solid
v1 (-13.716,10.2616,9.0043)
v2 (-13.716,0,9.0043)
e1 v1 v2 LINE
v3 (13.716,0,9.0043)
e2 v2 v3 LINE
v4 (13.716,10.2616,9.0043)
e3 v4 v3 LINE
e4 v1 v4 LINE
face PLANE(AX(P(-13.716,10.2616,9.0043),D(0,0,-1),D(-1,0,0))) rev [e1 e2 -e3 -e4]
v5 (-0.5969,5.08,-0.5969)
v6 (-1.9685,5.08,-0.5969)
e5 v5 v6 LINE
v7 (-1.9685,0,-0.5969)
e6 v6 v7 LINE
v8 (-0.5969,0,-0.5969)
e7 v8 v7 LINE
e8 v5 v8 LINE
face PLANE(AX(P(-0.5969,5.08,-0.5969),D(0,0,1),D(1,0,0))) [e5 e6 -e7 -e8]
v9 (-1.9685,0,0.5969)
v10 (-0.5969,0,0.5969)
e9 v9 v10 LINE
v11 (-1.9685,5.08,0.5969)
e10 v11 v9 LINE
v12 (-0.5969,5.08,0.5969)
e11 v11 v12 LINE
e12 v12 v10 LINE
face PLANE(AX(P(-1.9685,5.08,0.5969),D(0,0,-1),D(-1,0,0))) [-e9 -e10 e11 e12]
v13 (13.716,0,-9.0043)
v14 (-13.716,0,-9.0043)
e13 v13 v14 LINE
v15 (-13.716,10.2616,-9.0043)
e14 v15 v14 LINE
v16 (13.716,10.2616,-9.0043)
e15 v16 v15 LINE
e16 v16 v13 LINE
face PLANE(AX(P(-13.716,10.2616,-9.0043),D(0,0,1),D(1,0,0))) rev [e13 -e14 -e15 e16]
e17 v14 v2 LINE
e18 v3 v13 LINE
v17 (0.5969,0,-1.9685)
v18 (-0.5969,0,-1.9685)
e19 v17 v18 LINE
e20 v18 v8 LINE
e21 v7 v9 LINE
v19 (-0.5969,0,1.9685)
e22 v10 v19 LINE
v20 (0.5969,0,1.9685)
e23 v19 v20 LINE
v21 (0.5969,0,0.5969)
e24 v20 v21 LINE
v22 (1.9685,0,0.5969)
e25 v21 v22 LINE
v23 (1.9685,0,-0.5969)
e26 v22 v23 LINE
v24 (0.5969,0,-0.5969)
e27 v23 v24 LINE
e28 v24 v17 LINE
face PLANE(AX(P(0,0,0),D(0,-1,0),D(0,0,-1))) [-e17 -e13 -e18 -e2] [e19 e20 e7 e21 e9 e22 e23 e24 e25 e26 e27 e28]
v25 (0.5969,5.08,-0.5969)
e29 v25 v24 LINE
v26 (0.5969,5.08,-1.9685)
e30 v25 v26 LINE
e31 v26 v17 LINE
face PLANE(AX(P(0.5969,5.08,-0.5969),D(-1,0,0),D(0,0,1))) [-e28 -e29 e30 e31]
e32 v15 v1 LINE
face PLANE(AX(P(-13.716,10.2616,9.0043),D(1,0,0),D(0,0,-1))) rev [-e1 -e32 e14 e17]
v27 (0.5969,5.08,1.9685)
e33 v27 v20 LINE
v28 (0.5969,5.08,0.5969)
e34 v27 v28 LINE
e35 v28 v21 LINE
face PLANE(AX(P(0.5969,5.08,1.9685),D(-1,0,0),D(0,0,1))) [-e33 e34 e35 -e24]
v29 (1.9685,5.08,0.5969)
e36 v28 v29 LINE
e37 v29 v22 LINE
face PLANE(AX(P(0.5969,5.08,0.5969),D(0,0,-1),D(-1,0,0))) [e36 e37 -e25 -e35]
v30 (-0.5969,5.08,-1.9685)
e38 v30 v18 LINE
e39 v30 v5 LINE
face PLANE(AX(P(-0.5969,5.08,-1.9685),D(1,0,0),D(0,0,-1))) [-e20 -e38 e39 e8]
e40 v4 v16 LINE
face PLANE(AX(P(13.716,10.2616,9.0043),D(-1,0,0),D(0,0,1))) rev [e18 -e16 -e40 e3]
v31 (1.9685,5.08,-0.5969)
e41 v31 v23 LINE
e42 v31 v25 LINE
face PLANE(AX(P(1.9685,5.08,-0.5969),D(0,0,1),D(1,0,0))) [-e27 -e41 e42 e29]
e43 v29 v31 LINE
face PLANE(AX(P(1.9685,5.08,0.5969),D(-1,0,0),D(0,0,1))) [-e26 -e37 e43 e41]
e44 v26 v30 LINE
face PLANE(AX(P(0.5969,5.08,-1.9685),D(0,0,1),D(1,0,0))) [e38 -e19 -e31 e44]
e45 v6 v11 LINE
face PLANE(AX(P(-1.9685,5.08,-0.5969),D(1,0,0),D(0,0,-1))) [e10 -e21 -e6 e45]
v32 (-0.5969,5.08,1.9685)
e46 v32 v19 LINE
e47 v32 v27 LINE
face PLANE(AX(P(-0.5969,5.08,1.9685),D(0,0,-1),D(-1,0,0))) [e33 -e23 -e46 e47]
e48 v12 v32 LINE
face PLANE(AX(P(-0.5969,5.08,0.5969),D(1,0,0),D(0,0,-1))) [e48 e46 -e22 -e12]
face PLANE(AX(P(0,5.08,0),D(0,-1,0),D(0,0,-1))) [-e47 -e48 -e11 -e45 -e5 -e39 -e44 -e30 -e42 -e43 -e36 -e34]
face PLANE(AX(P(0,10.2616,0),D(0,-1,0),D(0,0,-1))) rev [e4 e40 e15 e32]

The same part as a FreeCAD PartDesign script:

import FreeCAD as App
import Part
import Sketcher
from FreeCAD import Vector
Q = App.Units.Quantity


def add_polygon(sketch, points):
    """Adds a closed chain of lines whose ends are joined by coincident constraints."""
    first, n = sketch.GeometryCount, len(points)
    for a, b in zip(points, points[1:] + points[:1]):
        sketch.addGeometry(Part.LineSegment(App.Vector(*a, 0), App.Vector(*b, 0)), False)
    for i in range(n):
        sketch.addConstraint(Sketcher.Constraint("Coincident", first + i, 2, first + (i + 1) % n, 1))

doc = App.newDocument("Part")
body = doc.addObject("PartDesign::Body", "Body")

# Sketch on XZ plane
sketch1 = doc.addObject("Sketcher::SketchObject", "Sketch")
body.addObject(sketch1)
sketch1.AttachmentSupport = (doc.XZ_Plane, [""])
sketch1.MapMode = "FlatFace"
add_polygon(sketch1, [(-13.716, -9.0043), (-13.716, 9.0043), (13.716, 9.0043), (13.716, -9.0043)])  # lines 0-3
sketch1.addConstraint(Sketcher.Constraint("Vertical", 0))
sketch1.addConstraint(Sketcher.Constraint("Horizontal", 1))
sketch1.addConstraint(Sketcher.Constraint("Vertical", 2))
sketch1.addConstraint(Sketcher.Constraint("Horizontal", 3))
sketch1.addConstraint(Sketcher.Constraint("Symmetric", 0, 2, 2, 2, -1, 1))
sketch1.addConstraint(Sketcher.Constraint("DistanceX", 1, 1, 1, 2, Q("1.08 in")))
sketch1.addConstraint(Sketcher.Constraint("DistanceY", 0, 1, 0, 2, Q("0.709 in")))
pad1 = doc.addObject("PartDesign::Pad", "Pad")
body.addObject(pad1)
pad1.Profile = sketch1
pad1.Length = Q("0.404 in")
pad1.Reversed = True

# Sketch on XZ plane
sketch2 = doc.addObject("Sketcher::SketchObject", "Sketch001")
body.addObject(sketch2)
sketch2.AttachmentSupport = (doc.XZ_Plane, [""])
sketch2.MapMode = "FlatFace"
add_polygon(sketch2, [(-0.5969, 1.9685), (-0.5969, 0.5969), (-1.9685, 0.5969), (-1.9685, -0.5969), (-0.5969, -0.5969), (-0.5969, -1.9685), (0.5969, -1.9685), (0.5969, -0.5969), (1.9685, -0.5969), (1.9685, 0.5969), (0.5969, 0.5969), (0.5969, 1.9685)])  # lines 0-11
sketch2.addConstraint(Sketcher.Constraint("Vertical", 0))
sketch2.addConstraint(Sketcher.Constraint("Horizontal", 1))
sketch2.addConstraint(Sketcher.Constraint("Vertical", 2))
sketch2.addConstraint(Sketcher.Constraint("Horizontal", 3))
sketch2.addConstraint(Sketcher.Constraint("Vertical", 4))
sketch2.addConstraint(Sketcher.Constraint("Horizontal", 5))
sketch2.addConstraint(Sketcher.Constraint("Vertical", 6))
sketch2.addConstraint(Sketcher.Constraint("Horizontal", 7))
sketch2.addConstraint(Sketcher.Constraint("Vertical", 8))
sketch2.addConstraint(Sketcher.Constraint("Horizontal", 9))
sketch2.addConstraint(Sketcher.Constraint("Vertical", 10))
sketch2.addConstraint(Sketcher.Constraint("Horizontal", 11))
sketch2.addConstraint(Sketcher.Constraint("Symmetric", 0, 2, 6, 2, -1, 1))
sketch2.addConstraint(Sketcher.Constraint("Symmetric", 2, 2, 8, 2, -1, 1))
sketch2.addConstraint(Sketcher.Constraint("Symmetric", 4, 2, 10, 2, -1, 1))
sketch2.addConstraint(Sketcher.Constraint("Symmetric", 3, 2, 6, 2, -2))
sketch2.addConstraint(Sketcher.Constraint("Equal", 9, 0))
sketch2.addConstraint(Sketcher.Constraint("Equal", 11, 2))
sketch2.addConstraint(Sketcher.Constraint("DistanceX", 1, 2, 1, 1, Q("0.054 in")))
sketch2.addConstraint(Sketcher.Constraint("DistanceX", 5, 1, 5, 2, Q("0.047 in")))
pocket1 = doc.addObject("PartDesign::Pocket", "Pocket")
body.addObject(pocket1)
pocket1.Profile = sketch2
pocket1.Length = Q("0.2 in")

doc.recompute()
